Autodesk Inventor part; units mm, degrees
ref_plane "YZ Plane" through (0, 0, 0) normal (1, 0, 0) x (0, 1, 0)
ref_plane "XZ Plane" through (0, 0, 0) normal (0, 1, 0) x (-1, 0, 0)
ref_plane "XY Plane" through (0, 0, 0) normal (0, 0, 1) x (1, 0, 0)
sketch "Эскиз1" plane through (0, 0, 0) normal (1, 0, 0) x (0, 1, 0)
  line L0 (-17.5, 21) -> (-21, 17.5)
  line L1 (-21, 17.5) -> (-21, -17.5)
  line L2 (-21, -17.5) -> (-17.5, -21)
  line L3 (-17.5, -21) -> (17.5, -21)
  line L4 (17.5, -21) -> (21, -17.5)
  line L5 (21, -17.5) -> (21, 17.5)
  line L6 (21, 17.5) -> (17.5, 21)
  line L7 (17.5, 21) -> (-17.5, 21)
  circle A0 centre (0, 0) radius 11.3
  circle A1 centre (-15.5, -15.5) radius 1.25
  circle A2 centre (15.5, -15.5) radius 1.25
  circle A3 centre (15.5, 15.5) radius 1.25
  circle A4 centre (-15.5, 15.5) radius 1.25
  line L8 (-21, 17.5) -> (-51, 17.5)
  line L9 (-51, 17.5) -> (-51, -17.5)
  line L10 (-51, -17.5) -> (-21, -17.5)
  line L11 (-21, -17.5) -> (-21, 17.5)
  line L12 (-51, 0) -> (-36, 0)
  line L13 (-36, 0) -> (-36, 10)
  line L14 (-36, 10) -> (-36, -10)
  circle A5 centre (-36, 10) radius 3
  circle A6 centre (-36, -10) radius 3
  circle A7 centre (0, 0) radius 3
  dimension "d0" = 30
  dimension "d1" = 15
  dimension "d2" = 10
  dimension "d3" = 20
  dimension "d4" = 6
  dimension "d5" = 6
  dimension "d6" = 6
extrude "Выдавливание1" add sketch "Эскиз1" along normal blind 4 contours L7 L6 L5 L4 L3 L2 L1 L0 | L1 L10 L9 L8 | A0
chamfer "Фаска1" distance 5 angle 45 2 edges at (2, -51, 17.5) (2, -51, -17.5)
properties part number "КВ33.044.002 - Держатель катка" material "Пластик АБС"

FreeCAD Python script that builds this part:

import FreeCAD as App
import Part
import Sketcher

V = App.Vector
Q = App.Units.Quantity


def edges_at(feature, points):
    """Names of the edges that pass closest to the given points."""
    edges = feature.Shape.Edges
    near = lambda p: min(range(len(edges)), key=lambda i: edges[i].distToShape(Part.Vertex(*p))[0])
    return sorted({f"Edge{near(p) + 1}" for p in points})

doc = App.newDocument("Part")
body = doc.addObject("PartDesign::Body", "Body")

sketch1 = body.newObject("Sketcher::SketchObject", "Sketch")
sketch1.AttachmentSupport = (doc.getObject("YZ_Plane"), [""])
sketch1.MapMode = "FlatFace"
sketch1.addGeometry([
    Part.LineSegment(V(17.5, 21, 0), V(-17.5, 21, 0)),
    Part.LineSegment(V(-17.5, 21, 0), V(-21, 17.5, 0)),
    Part.LineSegment(V(-21, 17.5, 0), V(-51, 17.5, 0)),
    Part.LineSegment(V(-51, 17.5, 0), V(-51, 0, 0)),
    Part.LineSegment(V(-51, 0, 0), V(-51, -17.5, 0)),
    Part.LineSegment(V(-51, -17.5, 0), V(-21, -17.5, 0)),
    Part.LineSegment(V(-21, -17.5, 0), V(-17.5, -21, 0)),
    Part.LineSegment(V(-17.5, -21, 0), V(17.5, -21, 0)),
    Part.LineSegment(V(17.5, -21, 0), V(21, -17.5, 0)),
    Part.LineSegment(V(21, -17.5, 0), V(21, 17.5, 0)),
    Part.LineSegment(V(21, 17.5, 0), V(17.5, 21, 0)),
    Part.Circle(V(-15.5, -15.5, 0), V(0, 0, 1), 1.25),
    Part.Circle(V(15.5, -15.5, 0), V(0, 0, 1), 1.25),
    Part.Circle(V(-15.5, 15.5, 0), V(0, 0, 1), 1.25),
    Part.Circle(V(15.5, 15.5, 0), V(0, 0, 1), 1.25),
    Part.Circle(V(-36, -10, 0), V(0, 0, 1), 3),
    Part.Circle(V(-36, 10, 0), V(0, 0, 1), 3),
    Part.Circle(V(0, 0, 0), V(0, 0, 1), 3),
], False)
sketch1.addConstraint([
    Sketcher.Constraint("Coincident", 0, 2, 1, 1),
    Sketcher.Constraint("Coincident", 1, 2, 2, 1),
    Sketcher.Constraint("Coincident", 2, 2, 3, 1),
    Sketcher.Constraint("Coincident", 3, 2, 4, 1),
    Sketcher.Constraint("Coincident", 4, 2, 5, 1),
    Sketcher.Constraint("Coincident", 5, 2, 6, 1),
    Sketcher.Constraint("Coincident", 6, 2, 7, 1),
    Sketcher.Constraint("Coincident", 7, 2, 8, 1),
    Sketcher.Constraint("Coincident", 8, 2, 9, 1),
    Sketcher.Constraint("Coincident", 9, 2, 10, 1),
    Sketcher.Constraint("Coincident", 10, 2, 0, 1),
    Sketcher.Constraint("Horizontal", 0),
    Sketcher.Constraint("Horizontal", 2),
    Sketcher.Constraint("Vertical", 3),
    Sketcher.Constraint("Vertical", 4),
    Sketcher.Constraint("Horizontal", 5),
    Sketcher.Constraint("Horizontal", 7),
    Sketcher.Constraint("Vertical", 9),
    Sketcher.Constraint("Coincident", 17, 3, -1, 1),
    Sketcher.Constraint("Equal", 11, 12),
    Sketcher.Constraint("Equal", 12, 13),
    Sketcher.Constraint("Equal", 13, 14),
    Sketcher.Constraint("Equal", 15, 16),
    Sketcher.Constraint("Equal", 16, 17),
    Sketcher.Constraint("Symmetric", 12, 3, 13, 3, -1, 1),
    Sketcher.Constraint("Symmetric", 11, 3, 14, 3, -1, 1),
    Sketcher.Constraint("Symmetric", 0, 2, 7, 2, -1, 1),
    Sketcher.Constraint("Symmetric", 1, 2, 8, 2, -1, 1),
    Sketcher.Constraint("Symmetric", 5, 2, 9, 2, -1, 1),
    Sketcher.Constraint("Symmetric", 11, 3, 12, 3, -2),
    Sketcher.Constraint("Symmetric", 15, 3, 16, 3, -1),
    Sketcher.Constraint("PointOnObject", 3, 2, -1),
    Sketcher.Constraint("Perpendicular", 1, 6),
    Sketcher.Constraint("Perpendicular", 8, 10),
    Sketcher.Constraint("Horizontal", 5, 2, 8, 2),
    Sketcher.Constraint("Vertical", 0, 2, 6, 2),
    Sketcher.Constraint("Equal", 7, 9),
    Sketcher.Constraint("Diameter", 15, Q("6 mm")),
    Sketcher.Constraint("DistanceX", 2, 2, 2, 1, Q("30 mm")),
    Sketcher.Constraint("DistanceY", 15, 3, -1, 1, Q("10 mm")),
    Sketcher.Constraint("DistanceX", 16, 3, 1, 2, Q("15 mm")),
    Sketcher.Constraint("Diameter", 11, Q("2.5 mm")),
    Sketcher.Constraint("DistanceX", 0, 2, 0, 1, Q("35 mm")),
    Sketcher.Constraint("DistanceX", 15, 3, -1, 1, Q("36 mm")),
    Sketcher.Constraint("DistanceX", 11, 3, 12, 3, Q("31 mm")),
    Sketcher.Constraint("DistanceY", 11, 3, 13, 3, Q("31 mm")),
])
pad1 = body.newObject("PartDesign::Pad", "Pad")
pad1.Profile = sketch1
pad1.Length = 4
doc.recompute()

chamfer = body.newObject("PartDesign::Chamfer", "Chamfer")
chamfer.Base = (pad1, edges_at(pad1, [(2, -51, 17.5), (2, -51, -17.5)]))
chamfer.Size = 5

doc.recompute()
